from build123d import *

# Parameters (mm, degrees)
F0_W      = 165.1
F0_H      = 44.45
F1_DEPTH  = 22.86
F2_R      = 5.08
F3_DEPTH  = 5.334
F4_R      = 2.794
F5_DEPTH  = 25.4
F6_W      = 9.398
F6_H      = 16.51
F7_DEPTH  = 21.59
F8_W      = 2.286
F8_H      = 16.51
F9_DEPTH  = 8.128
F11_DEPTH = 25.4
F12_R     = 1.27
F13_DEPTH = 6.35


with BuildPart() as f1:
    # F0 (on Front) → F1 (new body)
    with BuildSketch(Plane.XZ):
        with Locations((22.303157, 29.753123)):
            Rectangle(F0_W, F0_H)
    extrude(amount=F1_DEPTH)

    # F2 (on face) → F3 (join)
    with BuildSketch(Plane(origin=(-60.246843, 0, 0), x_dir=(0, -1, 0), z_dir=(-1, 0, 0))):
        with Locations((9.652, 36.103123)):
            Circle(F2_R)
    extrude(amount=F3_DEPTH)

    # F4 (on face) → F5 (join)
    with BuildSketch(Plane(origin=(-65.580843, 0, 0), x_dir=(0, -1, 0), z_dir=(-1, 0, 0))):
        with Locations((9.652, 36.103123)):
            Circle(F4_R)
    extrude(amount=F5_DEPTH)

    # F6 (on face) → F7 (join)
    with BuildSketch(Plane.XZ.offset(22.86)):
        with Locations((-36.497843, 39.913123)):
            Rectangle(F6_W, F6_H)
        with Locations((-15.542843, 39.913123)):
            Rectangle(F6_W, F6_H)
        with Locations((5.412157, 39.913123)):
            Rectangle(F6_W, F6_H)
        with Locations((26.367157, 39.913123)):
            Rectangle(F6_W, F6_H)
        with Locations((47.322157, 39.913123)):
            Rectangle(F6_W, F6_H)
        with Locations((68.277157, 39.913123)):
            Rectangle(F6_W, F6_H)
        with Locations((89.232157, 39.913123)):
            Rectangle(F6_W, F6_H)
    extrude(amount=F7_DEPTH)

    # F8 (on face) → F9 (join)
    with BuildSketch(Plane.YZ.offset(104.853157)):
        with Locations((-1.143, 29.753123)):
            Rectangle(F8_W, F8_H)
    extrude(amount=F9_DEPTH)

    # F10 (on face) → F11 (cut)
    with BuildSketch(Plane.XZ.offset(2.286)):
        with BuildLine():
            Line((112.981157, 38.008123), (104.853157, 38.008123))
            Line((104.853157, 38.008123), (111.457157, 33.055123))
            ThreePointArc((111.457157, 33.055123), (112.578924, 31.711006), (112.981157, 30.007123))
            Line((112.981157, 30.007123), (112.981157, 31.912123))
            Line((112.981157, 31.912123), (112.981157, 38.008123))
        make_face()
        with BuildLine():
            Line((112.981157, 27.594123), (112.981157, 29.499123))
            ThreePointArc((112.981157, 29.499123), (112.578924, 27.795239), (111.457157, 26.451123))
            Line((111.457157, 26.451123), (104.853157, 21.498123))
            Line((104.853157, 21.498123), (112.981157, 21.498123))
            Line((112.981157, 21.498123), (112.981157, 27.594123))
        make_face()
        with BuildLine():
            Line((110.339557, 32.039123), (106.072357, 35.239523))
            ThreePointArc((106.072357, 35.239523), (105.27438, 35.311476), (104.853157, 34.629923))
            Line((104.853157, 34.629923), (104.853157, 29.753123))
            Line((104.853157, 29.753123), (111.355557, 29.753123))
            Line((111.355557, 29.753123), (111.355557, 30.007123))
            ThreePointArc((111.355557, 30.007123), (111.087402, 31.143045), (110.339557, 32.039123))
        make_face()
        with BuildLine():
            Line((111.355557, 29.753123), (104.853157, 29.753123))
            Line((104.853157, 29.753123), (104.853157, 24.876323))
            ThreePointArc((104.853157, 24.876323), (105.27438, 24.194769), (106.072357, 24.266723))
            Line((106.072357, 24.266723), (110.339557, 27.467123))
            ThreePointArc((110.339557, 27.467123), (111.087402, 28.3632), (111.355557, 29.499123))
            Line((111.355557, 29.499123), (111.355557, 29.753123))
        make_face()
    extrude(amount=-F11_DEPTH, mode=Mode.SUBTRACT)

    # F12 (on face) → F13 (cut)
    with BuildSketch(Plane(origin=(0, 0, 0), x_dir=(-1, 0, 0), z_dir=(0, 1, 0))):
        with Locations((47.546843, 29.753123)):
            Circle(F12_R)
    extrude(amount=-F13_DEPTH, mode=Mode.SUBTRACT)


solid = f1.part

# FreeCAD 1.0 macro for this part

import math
import FreeCAD as App
import Part
import Sketcher
Q = App.Units.Quantity


def add_polygon(sketch, points):
    """Adds a closed chain of lines whose ends are joined by coincident constraints."""
    first, n = sketch.GeometryCount, len(points)
    for a, b in zip(points, points[1:] + points[:1]):
        sketch.addGeometry(Part.LineSegment(App.Vector(*a, 0), App.Vector(*b, 0)), False)
    for i in range(n):
        sketch.addConstraint(Sketcher.Constraint("Coincident", first + i, 2, first + (i + 1) % n, 1))

doc = App.newDocument("Part")
body = doc.addObject("PartDesign::Body", "Body")

# Sketch on XZ plane
sketch1 = body.newObject("Sketcher::SketchObject", "Sketch")
sketch1.AttachmentSupport = (doc.getObject("XZ_Plane"), [""])
sketch1.MapMode = "FlatFace"
add_polygon(sketch1, [(-60, 52), (-60, 8), (105, 8), (105, 52)])  # lines 0-3
sketch1.addConstraint([
    Sketcher.Constraint("Vertical", 0),
    Sketcher.Constraint("Horizontal", 1),
    Sketcher.Constraint("Vertical", 2),
    Sketcher.Constraint("Horizontal", 3),
    Sketcher.Constraint("DistanceX", 1, 1, 1, 2, Q("6.5 in")),
    Sketcher.Constraint("DistanceY", 0, 2, 0, 1, Q("1.75 in")),
    Sketcher.Constraint("DistanceX", 0, 2, -1, 1, 60.246843),
    Sketcher.Constraint("DistanceY", -1, 1, 0, 2, 7.528123),
])
pad1 = body.newObject("PartDesign::Pad", "Pad")
pad1.Profile = sketch1
pad1.Length = Q("0.9 in")

# Sketch on YZ plane
sketch2 = body.newObject("Sketcher::SketchObject", "Sketch001")
sketch2.AttachmentSupport = (doc.getObject("YZ_Plane"), [""])
sketch2.MapMode = "FlatFace"
sketch2.AttachmentOffset = App.Placement(App.Vector(0, 0, -60.246843), App.Rotation())
sketch2.addGeometry(Part.Circle(App.Vector(-10, 36, 0), App.Vector(0, 0, 1), 5), False)
sketch2.addConstraint([
    Sketcher.Constraint("Diameter", 0, Q("0.4 in")),
    Sketcher.Constraint("DistanceX", 0, 3, -1, 1, Q("0.38 in")),
    Sketcher.Constraint("DistanceY", -1, 1, 0, 3, 36.103123),
])
pad2 = body.newObject("PartDesign::Pad", "Pad001")
pad2.Profile = sketch2
pad2.Length = Q("0.21 in")
pad2.Reversed = True

# Sketch on YZ plane
sketch3 = body.newObject("Sketcher::SketchObject", "Sketch002")
sketch3.AttachmentSupport = (doc.getObject("YZ_Plane"), [""])
sketch3.MapMode = "FlatFace"
sketch3.AttachmentOffset = App.Placement(App.Vector(0, 0, -65.580843), App.Rotation())
sketch3.addGeometry(Part.Circle(App.Vector(-9.7, 36.1, 0), App.Vector(0, 0, 1), 2.8), False)
sketch3.addConstraint([
    Sketcher.Constraint("Diameter", 0, Q("0.22 in")),
    Sketcher.Constraint("DistanceX", 0, 3, -1, 1, Q("0.38 in")),
    Sketcher.Constraint("DistanceY", -1, 1, 0, 3, 36.103123),
])
pad3 = body.newObject("PartDesign::Pad", "Pad002")
pad3.Profile = sketch3
pad3.Length = Q("1 in")
pad3.Reversed = True

# Sketch on XZ plane
sketch4 = body.newObject("Sketcher::SketchObject", "Sketch003")
sketch4.AttachmentSupport = (doc.getObject("XZ_Plane"), [""])
sketch4.MapMode = "FlatFace"
sketch4.AttachmentOffset = App.Placement(App.Vector(0, 0, 0.9 * 25.4), App.Rotation())
add_polygon(sketch4, [(-41, 48), (-41, 32), (-32, 32), (-32, 48)])  # lines 0-3
add_polygon(sketch4, [(-20, 48), (-20, 32), (-11, 32), (-11, 48)])  # lines 4-7
add_polygon(sketch4, [(1, 48), (1, 32), (10, 32), (10, 48)])  # lines 8-11
add_polygon(sketch4, [(22, 48), (22, 32), (31, 32), (31, 48)])  # lines 12-15
add_polygon(sketch4, [(43, 48), (43, 32), (52, 32), (52, 48)])  # lines 16-19
add_polygon(sketch4, [(64, 48), (64, 32), (73, 32), (73, 48)])  # lines 20-23
add_polygon(sketch4, [(85, 48), (85, 32), (94, 32), (94, 48)])  # lines 24-27
sketch4.addConstraint([
    Sketcher.Constraint("Vertical", 0),
    Sketcher.Constraint("Horizontal", 1),
    Sketcher.Constraint("Vertical", 2),
    Sketcher.Constraint("Horizontal", 3),
    Sketcher.Constraint("Vertical", 4),
    Sketcher.Constraint("Horizontal", 5),
    Sketcher.Constraint("Vertical", 6),
    Sketcher.Constraint("Horizontal", 7),
    Sketcher.Constraint("Vertical", 8),
    Sketcher.Constraint("Horizontal", 9),
    Sketcher.Constraint("Vertical", 10),
    Sketcher.Constraint("Horizontal", 11),
    Sketcher.Constraint("Vertical", 12),
    Sketcher.Constraint("Horizontal", 13),
    Sketcher.Constraint("Vertical", 14),
    Sketcher.Constraint("Horizontal", 15),
    Sketcher.Constraint("Vertical", 16),
    Sketcher.Constraint("Horizontal", 17),
    Sketcher.Constraint("Vertical", 18),
    Sketcher.Constraint("Horizontal", 19),
    Sketcher.Constraint("Vertical", 20),
    Sketcher.Constraint("Horizontal", 21),
    Sketcher.Constraint("Vertical", 22),
    Sketcher.Constraint("Horizontal", 23),
    Sketcher.Constraint("Vertical", 24),
    Sketcher.Constraint("Horizontal", 25),
    Sketcher.Constraint("Vertical", 26),
    Sketcher.Constraint("Horizontal", 27),
    Sketcher.Constraint("Horizontal", 1, 2, 4, 2),
    Sketcher.Constraint("Horizontal", 3, 2, 6, 2),
    Sketcher.Constraint("Horizontal", 5, 2, 8, 2),
    Sketcher.Constraint("Horizontal", 7, 2, 10, 2),
    Sketcher.Constraint("Horizontal", 9, 2, 12, 2),
    Sketcher.Constraint("Horizontal", 11, 2, 14, 2),
    Sketcher.Constraint("Horizontal", 13, 2, 16, 2),
    Sketcher.Constraint("Horizontal", 15, 2, 18, 2),
    Sketcher.Constraint("Horizontal", 17, 2, 20, 2),
    Sketcher.Constraint("Horizontal", 19, 2, 22, 2),
    Sketcher.Constraint("Horizontal", 21, 2, 24, 2),
    Sketcher.Constraint("Horizontal", 23, 2, 26, 2),
    Sketcher.Constraint("Equal", 3, 5),
    Sketcher.Constraint("Equal", 7, 9),
    Sketcher.Constraint("Equal", 11, 13),
    Sketcher.Constraint("Equal", 15, 17),
    Sketcher.Constraint("Equal", 19, 21),
    Sketcher.Constraint("Equal", 23, 25),
    Sketcher.Constraint("DistanceX", 1, 1, 1, 2, Q("0.37 in")),
    Sketcher.Constraint("DistanceY", 0, 2, 0, 1, Q("0.65 in")),
    Sketcher.Constraint("DistanceX", 1, 2, 8, 2, Q("1.28 in")),
    Sketcher.Constraint("DistanceX", 5, 2, 12, 2, Q("1.28 in")),
    Sketcher.Constraint("DistanceX", 9, 2, 16, 2, Q("1.28 in")),
    Sketcher.Constraint("DistanceX", 13, 2, 20, 2, Q("1.28 in")),
    Sketcher.Constraint("DistanceX", 17, 2, 24, 2, Q("1.28 in")),
    Sketcher.Constraint("DistanceX", 1, 2, 4, 2, Q("0.455 in")),
    Sketcher.Constraint("DistanceX", 0, 2, -1, 1, 41.196843),
    Sketcher.Constraint("DistanceY", -1, 1, 0, 2, 31.658123),
])
pad4 = body.newObject("PartDesign::Pad", "Pad003")
pad4.Profile = sketch4
pad4.Length = Q("0.85 in")

# Sketch on YZ plane
sketch5 = body.newObject("Sketcher::SketchObject", "Sketch004")
sketch5.AttachmentSupport = (doc.getObject("YZ_Plane"), [""])
sketch5.MapMode = "FlatFace"
sketch5.AttachmentOffset = App.Placement(App.Vector(0, 0, 104.853157), App.Rotation())
add_polygon(sketch5, [(-2.3, 38), (-2.3, 21.5), (0, 21.5), (0, 38)])  # lines 0-3
sketch5.addConstraint([
    Sketcher.Constraint("Vertical", 0),
    Sketcher.Constraint("Horizontal", 1),
    Sketcher.Constraint("Vertical", 2),
    Sketcher.Constraint("Horizontal", 3),
    Sketcher.Constraint("PointOnObject", 1, 2, -2),
    Sketcher.Constraint("DistanceX", 1, 1, 1, 2, Q("0.09 in")),
    Sketcher.Constraint("DistanceY", 0, 2, 0, 1, Q("0.65 in")),
    Sketcher.Constraint("DistanceY", -1, 1, 0, 2, 21.498123),
])
pad5 = body.newObject("PartDesign::Pad", "Pad004")
pad5.Profile = sketch5
pad5.Length = Q("0.32 in")

# Sketch on XZ plane
sketch6 = body.newObject("Sketcher::SketchObject", "Sketch005")
sketch6.AttachmentSupport = (doc.getObject("XZ_Plane"), [""])
sketch6.MapMode = "FlatFace"
sketch6.AttachmentOffset = App.Placement(App.Vector(0, 0, 0.09 * 25.4), App.Rotation())
sketch6.addGeometry([
    Part.LineSegment(App.Vector(113, 38, 0), App.Vector(104.9, 38, 0)),  # 0
    Part.LineSegment(App.Vector(104.9, 38, 0), App.Vector(111.5, 33.1, 0)),  # 1
    Part.ArcOfCircle(Part.Circle(App.Vector(109.2, 30, 0), App.Vector(0, 0, 1), 3.8), math.radians(0), math.radians(53)),  # 2
    Part.LineSegment(App.Vector(113, 30, 0), App.Vector(113, 38, 0)),  # 3
    Part.ArcOfCircle(Part.Circle(App.Vector(109.2, 29.5, 0), App.Vector(0, 0, 1), 3.8), math.radians(-53), math.radians(0)),  # 4
    Part.LineSegment(App.Vector(111.5, 26.5, 0), App.Vector(104.9, 21.5, 0)),  # 5
    Part.LineSegment(App.Vector(104.9, 21.5, 0), App.Vector(113, 21.5, 0)),  # 6
    Part.LineSegment(App.Vector(113, 21.5, 0), App.Vector(113, 29.5, 0)),  # 7
    Part.LineSegment(App.Vector(110.3, 32, 0), App.Vector(106.1, 35.2, 0)),  # 8
    Part.ArcOfCircle(Part.Circle(App.Vector(105.6, 34.6, 0), App.Vector(0, 0, 1), 0.8), math.radians(53), math.radians(180)),  # 9
    Part.LineSegment(App.Vector(104.9, 34.6, 0), App.Vector(104.9, 24.9, 0)),  # 10
    Part.ArcOfCircle(Part.Circle(App.Vector(105.6, 24.9, 0), App.Vector(0, 0, 1), 0.8), math.radians(180), math.radians(307)),  # 11
    Part.LineSegment(App.Vector(106.1, 24.3, 0), App.Vector(110.3, 27.5, 0)),  # 12
    Part.ArcOfCircle(Part.Circle(App.Vector(108.8, 29.5, 0), App.Vector(0, 0, 1), 2.5), math.radians(-53), math.radians(0)),  # 13
    Part.LineSegment(App.Vector(111.4, 29.5, 0), App.Vector(111.4, 30, 0)),  # 14
    Part.ArcOfCircle(Part.Circle(App.Vector(108.8, 30, 0), App.Vector(0, 0, 1), 2.5), math.radians(0), math.radians(53)),  # 15
], False)
sketch6.addConstraint([
    Sketcher.Constraint("Coincident", 0, 2, 1, 1),
    Sketcher.Constraint("Tangent", 1, 2, 2, 2),
    Sketcher.Constraint("Tangent", 2, 1, 3, 1),
    Sketcher.Constraint("Coincident", 3, 2, 0, 1),
    Sketcher.Constraint("Tangent", 4, 1, 5, 1),
    Sketcher.Constraint("Coincident", 5, 2, 6, 1),
    Sketcher.Constraint("Coincident", 6, 2, 7, 1),
    Sketcher.Constraint("Tangent", 7, 2, 4, 2),
    Sketcher.Constraint("Tangent", 8, 2, 9, 1),
    Sketcher.Constraint("Tangent", 9, 2, 10, 1),
    Sketcher.Constraint("Tangent", 10, 2, 11, 1),
    Sketcher.Constraint("Tangent", 11, 2, 12, 1),
    Sketcher.Constraint("Tangent", 12, 2, 13, 1),
    Sketcher.Constraint("Tangent", 13, 2, 14, 1),
    Sketcher.Constraint("Tangent", 14, 2, 15, 1),
    Sketcher.Constraint("Tangent", 15, 2, 8, 1),
    Sketcher.Constraint("Horizontal", 0),
    Sketcher.Constraint("Vertical", 3),
    Sketcher.Constraint("Horizontal", 6),
    Sketcher.Constraint("Vertical", 7),
    Sketcher.Constraint("Vertical", 10),
    Sketcher.Constraint("Vertical", 14),
    Sketcher.Constraint("Equal", 9, 11),
    Sketcher.Constraint("Parallel", 1, 8),
    Sketcher.Constraint("Parallel", 5, 12),
    Sketcher.Constraint("Horizontal", 15, 3, 2, 1),
    Sketcher.Constraint("Horizontal", 13, 3, 7, 2),
    Sketcher.Constraint("Vertical", 1, 2, 4, 1),
    Sketcher.Constraint("Vertical", 0, 2, 5, 2),
    Sketcher.Constraint("Vertical", 3, 2, 6, 2),
    Sketcher.Constraint("Vertical", 5, 2, 9, 2),
    Sketcher.Constraint("Vertical", 8, 2, 11, 2),
    Sketcher.Constraint("Vertical", 12, 2, 15, 2),
    Sketcher.Constraint("Radius", 13, Q("0.0999999 in")),
    Sketcher.Constraint("Radius", 4, Q("0.1500001 in")),
    Sketcher.Constraint("Radius", 9, Q("0.03 in")),
    Sketcher.Constraint("DistanceX", 0, 2, 0, 1, Q("0.32 in")),
    Sketcher.Constraint("DistanceY", 14, 1, 14, 2, Q("0.02 in")),
    Sketcher.Constraint("DistanceY", 12, 2, 2, 3, Q("0.0999999 in")),
    Sketcher.Constraint("Distance", 8, Q("0.21 in")),
    Sketcher.Constraint("DistanceX", -1, 1, 2, 3, 109.171149),
    Sketcher.Constraint("DistanceY", -1, 1, 2, 3, 30.007119),
])
pocket1 = body.newObject("PartDesign::Pocket", "Pocket")
pocket1.Profile = sketch6
pocket1.Length = Q("1 in")

# Sketch on XZ plane
sketch7 = body.newObject("Sketcher::SketchObject", "Sketch006")
sketch7.AttachmentSupport = (doc.getObject("XZ_Plane"), [""])
sketch7.MapMode = "FlatFace"
sketch7.addGeometry(Part.Circle(App.Vector(-47.5, 29.8, 0), App.Vector(0, 0, 1), 1.3), False)
sketch7.addConstraint([
    Sketcher.Constraint("Diameter", 0, Q("0.1 in")),
    Sketcher.Constraint("DistanceX", 0, 3, -1, 1, 47.546843),
    Sketcher.Constraint("DistanceY", -1, 1, 0, 3, 29.753123),
])
pocket2 = body.newObject("PartDesign::Pocket", "Pocket001")
pocket2.Profile = sketch7
pocket2.Length = Q("0.25 in")
pocket2.Reversed = True

doc.recompute()
